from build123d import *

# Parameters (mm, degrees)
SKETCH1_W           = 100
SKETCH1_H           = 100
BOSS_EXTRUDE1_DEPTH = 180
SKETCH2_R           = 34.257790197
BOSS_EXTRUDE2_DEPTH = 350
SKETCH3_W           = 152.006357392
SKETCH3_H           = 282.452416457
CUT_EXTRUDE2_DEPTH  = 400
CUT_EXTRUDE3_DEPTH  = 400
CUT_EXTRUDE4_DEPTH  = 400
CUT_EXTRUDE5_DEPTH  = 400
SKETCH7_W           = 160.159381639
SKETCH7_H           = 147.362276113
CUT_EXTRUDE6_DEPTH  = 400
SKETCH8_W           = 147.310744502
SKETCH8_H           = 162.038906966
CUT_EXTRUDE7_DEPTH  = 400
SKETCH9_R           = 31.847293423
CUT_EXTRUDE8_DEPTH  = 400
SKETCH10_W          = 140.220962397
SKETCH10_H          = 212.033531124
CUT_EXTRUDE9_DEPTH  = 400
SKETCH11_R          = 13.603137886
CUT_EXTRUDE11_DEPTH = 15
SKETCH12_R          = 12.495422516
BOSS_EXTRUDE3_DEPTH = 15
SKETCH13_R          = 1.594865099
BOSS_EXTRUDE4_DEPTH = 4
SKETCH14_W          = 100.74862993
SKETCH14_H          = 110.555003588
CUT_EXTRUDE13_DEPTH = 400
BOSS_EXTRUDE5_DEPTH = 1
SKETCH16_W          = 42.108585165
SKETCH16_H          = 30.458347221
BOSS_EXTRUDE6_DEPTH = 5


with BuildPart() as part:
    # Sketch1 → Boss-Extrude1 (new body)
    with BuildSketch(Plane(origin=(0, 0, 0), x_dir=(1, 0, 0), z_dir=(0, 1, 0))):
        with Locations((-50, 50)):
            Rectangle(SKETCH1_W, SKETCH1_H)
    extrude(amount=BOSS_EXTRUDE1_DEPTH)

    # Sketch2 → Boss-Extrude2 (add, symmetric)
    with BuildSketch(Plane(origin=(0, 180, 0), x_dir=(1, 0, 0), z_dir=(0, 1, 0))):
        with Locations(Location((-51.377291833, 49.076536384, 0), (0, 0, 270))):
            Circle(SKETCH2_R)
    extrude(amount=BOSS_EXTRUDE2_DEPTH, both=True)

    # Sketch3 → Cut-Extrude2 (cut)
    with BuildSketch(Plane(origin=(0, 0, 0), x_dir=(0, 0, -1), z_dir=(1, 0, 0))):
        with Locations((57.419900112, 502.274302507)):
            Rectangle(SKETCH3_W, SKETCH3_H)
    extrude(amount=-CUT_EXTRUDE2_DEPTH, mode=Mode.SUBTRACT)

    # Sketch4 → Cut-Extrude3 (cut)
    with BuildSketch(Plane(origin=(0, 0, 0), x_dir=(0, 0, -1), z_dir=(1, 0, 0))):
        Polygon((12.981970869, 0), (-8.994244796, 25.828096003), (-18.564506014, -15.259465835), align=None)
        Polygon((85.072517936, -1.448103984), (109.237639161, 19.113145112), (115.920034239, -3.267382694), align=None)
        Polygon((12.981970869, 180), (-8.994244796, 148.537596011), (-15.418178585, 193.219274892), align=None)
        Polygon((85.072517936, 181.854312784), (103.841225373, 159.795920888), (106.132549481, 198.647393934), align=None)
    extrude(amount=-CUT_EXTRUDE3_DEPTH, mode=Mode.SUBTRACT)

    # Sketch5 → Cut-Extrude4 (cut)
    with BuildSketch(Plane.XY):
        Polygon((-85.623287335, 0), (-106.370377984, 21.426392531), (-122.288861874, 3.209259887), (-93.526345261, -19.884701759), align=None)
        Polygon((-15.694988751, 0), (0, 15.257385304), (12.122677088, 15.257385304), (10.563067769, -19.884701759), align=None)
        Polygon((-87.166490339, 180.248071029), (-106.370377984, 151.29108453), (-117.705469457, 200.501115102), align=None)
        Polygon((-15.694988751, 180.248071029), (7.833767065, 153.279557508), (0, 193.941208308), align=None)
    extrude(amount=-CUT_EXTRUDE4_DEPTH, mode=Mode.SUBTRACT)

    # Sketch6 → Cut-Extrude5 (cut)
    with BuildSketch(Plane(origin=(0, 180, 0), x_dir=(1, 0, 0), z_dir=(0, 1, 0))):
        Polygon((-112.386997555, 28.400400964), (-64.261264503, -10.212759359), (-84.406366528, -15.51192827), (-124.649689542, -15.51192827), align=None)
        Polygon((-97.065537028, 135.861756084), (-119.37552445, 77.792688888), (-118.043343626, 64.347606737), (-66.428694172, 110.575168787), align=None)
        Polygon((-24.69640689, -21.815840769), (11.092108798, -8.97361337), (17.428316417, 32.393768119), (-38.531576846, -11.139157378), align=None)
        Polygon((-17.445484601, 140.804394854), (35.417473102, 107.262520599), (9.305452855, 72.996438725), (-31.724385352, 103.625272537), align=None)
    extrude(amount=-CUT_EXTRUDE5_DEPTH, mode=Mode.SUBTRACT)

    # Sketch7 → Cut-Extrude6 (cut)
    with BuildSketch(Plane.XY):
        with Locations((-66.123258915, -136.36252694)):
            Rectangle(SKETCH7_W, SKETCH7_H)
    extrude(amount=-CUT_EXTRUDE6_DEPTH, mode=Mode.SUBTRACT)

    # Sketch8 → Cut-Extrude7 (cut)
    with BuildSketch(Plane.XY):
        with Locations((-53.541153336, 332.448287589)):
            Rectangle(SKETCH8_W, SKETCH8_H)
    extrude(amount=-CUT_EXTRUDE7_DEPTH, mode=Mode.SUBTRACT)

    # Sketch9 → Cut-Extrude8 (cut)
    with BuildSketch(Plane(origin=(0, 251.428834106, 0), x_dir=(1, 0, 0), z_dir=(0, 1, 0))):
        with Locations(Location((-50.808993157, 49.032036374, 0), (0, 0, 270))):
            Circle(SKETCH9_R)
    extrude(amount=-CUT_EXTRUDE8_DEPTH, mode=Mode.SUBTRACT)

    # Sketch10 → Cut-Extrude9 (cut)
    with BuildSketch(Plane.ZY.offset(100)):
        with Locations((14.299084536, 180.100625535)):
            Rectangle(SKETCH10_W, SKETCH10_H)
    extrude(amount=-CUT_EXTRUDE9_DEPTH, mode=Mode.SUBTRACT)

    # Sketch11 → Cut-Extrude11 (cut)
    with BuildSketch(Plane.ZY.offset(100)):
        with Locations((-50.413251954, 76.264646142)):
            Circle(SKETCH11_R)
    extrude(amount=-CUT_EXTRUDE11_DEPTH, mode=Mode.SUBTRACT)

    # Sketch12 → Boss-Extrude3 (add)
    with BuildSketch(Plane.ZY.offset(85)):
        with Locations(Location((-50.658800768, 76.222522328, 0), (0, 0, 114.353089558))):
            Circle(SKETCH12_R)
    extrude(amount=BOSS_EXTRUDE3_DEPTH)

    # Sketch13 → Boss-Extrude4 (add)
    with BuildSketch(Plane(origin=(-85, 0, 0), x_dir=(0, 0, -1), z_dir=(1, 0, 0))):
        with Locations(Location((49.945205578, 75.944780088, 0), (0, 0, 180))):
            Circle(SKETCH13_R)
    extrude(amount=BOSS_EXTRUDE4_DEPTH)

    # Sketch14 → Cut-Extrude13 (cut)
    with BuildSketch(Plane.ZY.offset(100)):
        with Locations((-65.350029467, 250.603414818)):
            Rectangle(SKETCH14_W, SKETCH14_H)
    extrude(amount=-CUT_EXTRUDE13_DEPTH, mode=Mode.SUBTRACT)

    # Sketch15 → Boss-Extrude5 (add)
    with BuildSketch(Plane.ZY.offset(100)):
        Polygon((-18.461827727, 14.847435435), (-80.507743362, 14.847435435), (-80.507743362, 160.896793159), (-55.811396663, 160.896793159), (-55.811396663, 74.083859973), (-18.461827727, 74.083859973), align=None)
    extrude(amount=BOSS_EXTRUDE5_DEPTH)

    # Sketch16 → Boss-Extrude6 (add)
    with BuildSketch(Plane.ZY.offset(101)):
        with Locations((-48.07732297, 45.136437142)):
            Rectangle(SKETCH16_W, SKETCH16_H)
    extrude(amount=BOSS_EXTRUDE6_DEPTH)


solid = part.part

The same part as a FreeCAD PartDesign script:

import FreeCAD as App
import Part
import Sketcher
Q = App.Units.Quantity

doc = App.newDocument("Part")
body = doc.addObject("PartDesign::Body", "Body")

# Sketch on XZ plane
sketch1 = doc.addObject("Sketcher::SketchObject", "Sketch")
body.addObject(sketch1)
sketch1.AttachmentSupport = (doc.XZ_Plane, [""])
sketch1.MapMode = "FlatFace"
sketch1.addGeometry([
    Part.LineSegment(App.Vector(-100, -100, 0), App.Vector(-100, 0, 0)),
    Part.LineSegment(App.Vector(-100, 0, 0), App.Vector(0, 0, 0)),
    Part.LineSegment(App.Vector(0, 0, 0), App.Vector(0, -100, 0)),
    Part.LineSegment(App.Vector(0, -100, 0), App.Vector(-100, -100, 0)),
], False)
sketch1.addConstraint([
    Sketcher.Constraint("Coincident", 0, 2, 1, 1),
    Sketcher.Constraint("Coincident", 1, 2, 2, 1),
    Sketcher.Constraint("Coincident", 2, 2, 3, 1),
    Sketcher.Constraint("Coincident", 3, 2, 0, 1),
    Sketcher.Constraint("Vertical", 0),
    Sketcher.Constraint("Horizontal", 1),
    Sketcher.Constraint("Vertical", 2),
    Sketcher.Constraint("Horizontal", 3),
    Sketcher.Constraint("Coincident", 1, 2, -1, 1),
    Sketcher.Constraint("Equal", 3, 0),
    Sketcher.Constraint("DistanceX", 1, 1, 1, 2, 100.0),
])
pad1 = doc.addObject("PartDesign::Pad", "Pad")
body.addObject(pad1)
pad1.Profile = sketch1
pad1.Length = 180
pad1.Reversed = True

# Sketch on XZ plane
sketch2 = doc.addObject("Sketcher::SketchObject", "Sketch001")
body.addObject(sketch2)
sketch2.AttachmentSupport = (doc.XZ_Plane, [""])
sketch2.MapMode = "FlatFace"
sketch2.AttachmentOffset = App.Placement(App.Vector(0, 0, -180), App.Rotation())
sketch2.addGeometry(Part.Circle(App.Vector(-51, -49, 0), App.Vector(0, 0, 1), 34), False)
sketch2.addConstraint([
    Sketcher.Constraint("Diameter", 0, 68.51558),
    Sketcher.Constraint("DistanceX", 0, 3, -1, 1, 51.377292),
    Sketcher.Constraint("DistanceY", 0, 3, -1, 1, 49.076536),
])
pad2 = doc.addObject("PartDesign::Pad", "Pad001")
body.addObject(pad2)
pad2.Profile = sketch2
pad2.Length = 700
pad2.Midplane = True

# Sketch on YZ plane
sketch3 = doc.addObject("Sketcher::SketchObject", "Sketch002")
body.addObject(sketch3)
sketch3.AttachmentSupport = (doc.YZ_Plane, [""])
sketch3.MapMode = "FlatFace"
sketch3.addGeometry([
    Part.LineSegment(App.Vector(644, 19, 0), App.Vector(361, 19, 0)),
    Part.LineSegment(App.Vector(361, 19, 0), App.Vector(361, -133, 0)),
    Part.LineSegment(App.Vector(361, -133, 0), App.Vector(644, -133, 0)),
    Part.LineSegment(App.Vector(644, -133, 0), App.Vector(644, 19, 0)),
], False)
sketch3.addConstraint([
    Sketcher.Constraint("Coincident", 0, 2, 1, 1),
    Sketcher.Constraint("Coincident", 1, 2, 2, 1),
    Sketcher.Constraint("Coincident", 2, 2, 3, 1),
    Sketcher.Constraint("Coincident", 3, 2, 0, 1),
    Sketcher.Constraint("Horizontal", 0),
    Sketcher.Constraint("Vertical", 1),
    Sketcher.Constraint("Horizontal", 2),
    Sketcher.Constraint("Vertical", 3),
    Sketcher.Constraint("DistanceX", 0, 2, 0, 1, 282.452416),
    Sketcher.Constraint("DistanceY", 1, 2, 1, 1, 152.006357),
    Sketcher.Constraint("DistanceY", -1, 1, 0, 2, 18.583279),
    Sketcher.Constraint("DistanceX", -1, 1, 2, 2, 643.500511),
])
pocket1 = doc.addObject("PartDesign::Pocket", "Pocket")
body.addObject(pocket1)
pocket1.Profile = sketch3
pocket1.Length = 400

# Sketch on YZ plane
sketch4 = doc.addObject("Sketcher::SketchObject", "Sketch003")
body.addObject(sketch4)
sketch4.AttachmentSupport = (doc.YZ_Plane, [""])
sketch4.MapMode = "FlatFace"
sketch4.addGeometry([
    Part.LineSegment(App.Vector(0, -13, 0), App.Vector(26, 9, 0)),  # 0
    Part.LineSegment(App.Vector(26, 9, 0), App.Vector(-15, 19, 0)),  # 1
    Part.LineSegment(App.Vector(-15, 19, 0), App.Vector(0, -13, 0)),  # 2
    Part.LineSegment(App.Vector(19, -109, 0), App.Vector(-1, -85, 0)),  # 3
    Part.LineSegment(App.Vector(-1, -85, 0), App.Vector(-3, -116, 0)),  # 4
    Part.LineSegment(App.Vector(-3, -116, 0), App.Vector(19, -109, 0)),  # 5
    Part.LineSegment(App.Vector(149, 9, 0), App.Vector(180, -13, 0)),  # 6
    Part.LineSegment(App.Vector(180, -13, 0), App.Vector(193, 15, 0)),  # 7
    Part.LineSegment(App.Vector(193, 15, 0), App.Vector(149, 9, 0)),  # 8
    Part.LineSegment(App.Vector(182, -85, 0), App.Vector(160, -104, 0)),  # 9
    Part.LineSegment(App.Vector(160, -104, 0), App.Vector(199, -106, 0)),  # 10
    Part.LineSegment(App.Vector(199, -106, 0), App.Vector(182, -85, 0)),  # 11
], False)
sketch4.addConstraint([
    Sketcher.Constraint("Coincident", 0, 2, 1, 1),
    Sketcher.Constraint("Coincident", 1, 2, 2, 1),
    Sketcher.Constraint("Coincident", 2, 2, 0, 1),
    Sketcher.Constraint("Coincident", 3, 2, 4, 1),
    Sketcher.Constraint("Coincident", 4, 2, 5, 1),
    Sketcher.Constraint("Coincident", 5, 2, 3, 1),
    Sketcher.Constraint("Coincident", 6, 2, 7, 1),
    Sketcher.Constraint("Coincident", 7, 2, 8, 1),
    Sketcher.Constraint("Coincident", 8, 2, 6, 1),
    Sketcher.Constraint("Coincident", 9, 2, 10, 1),
    Sketcher.Constraint("Coincident", 10, 2, 11, 1),
    Sketcher.Constraint("Coincident", 11, 2, 9, 1),
    Sketcher.Constraint("PointOnObject", 2, 2, -2),
    Sketcher.Constraint("Perpendicular", 0, 3),
    Sketcher.Constraint("Perpendicular", 3, 9),
    Sketcher.Constraint("Perpendicular", 4, 10),
    Sketcher.Constraint("Horizontal", 2, 2, 6, 2),
    Sketcher.Constraint("Horizontal", 0, 2, 8, 2),
    Sketcher.Constraint("Horizontal", 3, 2, 11, 2),
    Sketcher.Constraint("DistanceX", -1, 1, 6, 2, 180.0),
    Sketcher.Constraint("DistanceX", 3, 2, 0, 2, 27.2762),
    Sketcher.Constraint("DistanceX", 0, 2, 8, 2, 122.7095),
    Sketcher.Constraint("Distance", 1, 42.187411),
    Sketcher.Constraint("Distance", 2, 35.04328),
    Sketcher.Constraint("Distance", 3, 31.72882),
    Sketcher.Constraint("Distance", 5, 23.35685),
    Sketcher.Constraint("Distance", 7, 31.325991),
    Sketcher.Constraint("Distance", 10, 38.918982),
    Sketcher.Constraint("Distance", 11, 26.935711),
    Sketcher.Constraint("DistanceY", 2, 2, -1, 1, 12.981971),
    Sketcher.Constraint("DistanceY", 5, 2, -1, 1, 109.237639),
    Sketcher.Constraint("DistanceY", -1, 1, 7, 2, 15.418179),
    Sketcher.Constraint("DistanceX", -1, 1, 9, 2, 159.795921),
    Sketcher.Constraint("DistanceY", 10, 2, -1, 1, 106.132549),
    Sketcher.Constraint("DistanceX", 1, 2, 0, 2, 41.087562),
    Sketcher.Constraint("DistanceX", 4, 2, 3, 2, 1.819279),
])
pocket2 = doc.addObject("PartDesign::Pocket", "Pocket001")
body.addObject(pocket2)
pocket2.Profile = sketch4
pocket2.Length = 400

# Sketch on XY plane
sketch5 = doc.addObject("Sketcher::SketchObject", "Sketch004")
body.addObject(sketch5)
sketch5.AttachmentSupport = (doc.XY_Plane, [""])
sketch5.MapMode = "FlatFace"
sketch5.addGeometry([
    Part.LineSegment(App.Vector(-86, 0, 0), App.Vector(-106, 21, 0)),  # 0
    Part.LineSegment(App.Vector(-106, 21, 0), App.Vector(-122, 3, 0)),  # 1
    Part.LineSegment(App.Vector(-122, 3, 0), App.Vector(-94, -20, 0)),  # 2
    Part.LineSegment(App.Vector(-94, -20, 0), App.Vector(-86, 0, 0)),  # 3
    Part.LineSegment(App.Vector(0, 15, 0), App.Vector(-16, 0, 0)),  # 4
    Part.LineSegment(App.Vector(-16, 0, 0), App.Vector(11, -20, 0)),  # 5
    Part.LineSegment(App.Vector(11, -20, 0), App.Vector(12, 15, 0)),  # 6
    Part.LineSegment(App.Vector(12, 15, 0), App.Vector(0, 15, 0)),  # 7
    Part.LineSegment(App.Vector(-106, 151, 0), App.Vector(-87, 180, 0)),  # 8
    Part.LineSegment(App.Vector(-87, 180, 0), App.Vector(-118, 201, 0)),  # 9
    Part.LineSegment(App.Vector(-118, 201, 0), App.Vector(-106, 151, 0)),  # 10
    Part.LineSegment(App.Vector(-16, 180, 0), App.Vector(8, 153, 0)),  # 11
    Part.LineSegment(App.Vector(8, 153, 0), App.Vector(0, 194, 0)),  # 12
    Part.LineSegment(App.Vector(0, 194, 0), App.Vector(-16, 180, 0)),  # 13
], False)
sketch5.addConstraint([
    Sketcher.Constraint("Coincident", 0, 2, 1, 1),
    Sketcher.Constraint("Coincident", 1, 2, 2, 1),
    Sketcher.Constraint("Coincident", 2, 2, 3, 1),
    Sketcher.Constraint("Coincident", 3, 2, 0, 1),
    Sketcher.Constraint("Coincident", 4, 2, 5, 1),
    Sketcher.Constraint("Coincident", 5, 2, 6, 1),
    Sketcher.Constraint("Coincident", 6, 2, 7, 1),
    Sketcher.Constraint("Coincident", 7, 2, 4, 1),
    Sketcher.Constraint("Coincident", 8, 2, 9, 1),
    Sketcher.Constraint("Coincident", 9, 2, 10, 1),
    Sketcher.Constraint("Coincident", 10, 2, 8, 1),
    Sketcher.Constraint("Coincident", 11, 2, 12, 1),
    Sketcher.Constraint("Coincident", 12, 2, 13, 1),
    Sketcher.Constraint("Coincident", 13, 2, 11, 1),
    Sketcher.Constraint("Horizontal", 7),
    Sketcher.Constraint("PointOnObject", 3, 2, -1),
    Sketcher.Constraint("PointOnObject", 4, 2, -1),
    Sketcher.Constraint("PointOnObject", 7, 2, -2),
    Sketcher.Constraint("PointOnObject", 12, 2, -2),
    Sketcher.Constraint("Perpendicular", 8, 9),
    Sketcher.Constraint("Perpendicular", 11, 13),
    Sketcher.Constraint("Horizontal", 2, 2, 5, 2),
    Sketcher.Constraint("Horizontal", 8, 2, 13, 2),
    Sketcher.Constraint("Vertical", 0, 2, 10, 2),
    Sketcher.Constraint("Vertical", 4, 2, 13, 2),
    Sketcher.Constraint("Angle", 4, Q("-135.809992 deg")),
    Sketcher.Constraint("Distance", 13, 20.828698),
    Sketcher.Constraint("DistanceY", 2, 2, -1, 1, 19.884702),
    Sketcher.Constraint("DistanceX", 3, 2, 4, 2, 69.928299),
    Sketcher.Constraint("DistanceX", 8, 2, 13, 2, 71.471502),
    Sketcher.Constraint("Distance", 1, 24.19219),
    Sketcher.Constraint("Distance", 4, 21.888821),
    Sketcher.Constraint("Distance", 5, 32.937621),
    Sketcher.Constraint("Distance", 8, 34.746171),
    Sketcher.Constraint("Distance", 9, 36.644441),
    Sketcher.Constraint("DistanceX", 7, 2, 7, 1, 12.122677),
    Sketcher.Constraint("DistanceX", 1, 2, -1, 1, 122.288862),
    Sketcher.Constraint("DistanceY", -1, 1, 1, 2, 3.20926),
    Sketcher.Constraint("DistanceY", -1, 1, 8, 2, 180.248071),
    Sketcher.Constraint("DistanceX", 9, 2, -1, 1, 117.705469),
    Sketcher.Constraint("DistanceX", 11, 2, 6, 2, 4.28891),
    Sketcher.Constraint("Distance", 2, 36.886494),
])
pocket3 = doc.addObject("PartDesign::Pocket", "Pocket002")
body.addObject(pocket3)
pocket3.Profile = sketch5
pocket3.Length = 400

# Sketch on XZ plane
sketch6 = doc.addObject("Sketcher::SketchObject", "Sketch005")
body.addObject(sketch6)
sketch6.AttachmentSupport = (doc.XZ_Plane, [""])
sketch6.MapMode = "FlatFace"
sketch6.AttachmentOffset = App.Placement(App.Vector(0, 0, -180), App.Rotation())
sketch6.addGeometry([
    Part.LineSegment(App.Vector(-64, 10, 0), App.Vector(-112, -28, 0)),  # 0
    Part.LineSegment(App.Vector(-112, -28, 0), App.Vector(-125, 16, 0)),  # 1
    Part.LineSegment(App.Vector(-125, 16, 0), App.Vector(-84, 16, 0)),  # 2
    Part.LineSegment(App.Vector(-84, 16, 0), App.Vector(-64, 10, 0)),  # 3
    Part.LineSegment(App.Vector(-97, -136, 0), App.Vector(-119, -78, 0)),  # 4
    Part.LineSegment(App.Vector(-119, -78, 0), App.Vector(-118, -64, 0)),  # 5
    Part.LineSegment(App.Vector(-118, -64, 0), App.Vector(-66, -111, 0)),  # 6
    Part.LineSegment(App.Vector(-66, -111, 0), App.Vector(-97, -136, 0)),  # 7
    Part.LineSegment(App.Vector(-25, 22, 0), App.Vector(11, 9, 0)),  # 8
    Part.LineSegment(App.Vector(11, 9, 0), App.Vector(17, -32, 0)),  # 9
    Part.LineSegment(App.Vector(17, -32, 0), App.Vector(-39, 11, 0)),  # 10
    Part.LineSegment(App.Vector(-39, 11, 0), App.Vector(-25, 22, 0)),  # 11
    Part.LineSegment(App.Vector(35, -107, 0), App.Vector(-17, -141, 0)),  # 12
    Part.LineSegment(App.Vector(-17, -141, 0), App.Vector(-32, -104, 0)),  # 13
    Part.LineSegment(App.Vector(-32, -104, 0), App.Vector(9, -73, 0)),  # 14
    Part.LineSegment(App.Vector(9, -73, 0), App.Vector(35, -107, 0)),  # 15
], False)
sketch6.addConstraint([
    Sketcher.Constraint("Coincident", 0, 2, 1, 1),
    Sketcher.Constraint("Coincident", 1, 2, 2, 1),
    Sketcher.Constraint("Coincident", 2, 2, 3, 1),
    Sketcher.Constraint("Coincident", 3, 2, 0, 1),
    Sketcher.Constraint("Coincident", 4, 2, 5, 1),
    Sketcher.Constraint("Coincident", 5, 2, 6, 1),
    Sketcher.Constraint("Coincident", 6, 2, 7, 1),
    Sketcher.Constraint("Coincident", 7, 2, 4, 1),
    Sketcher.Constraint("Coincident", 8, 2, 9, 1),
    Sketcher.Constraint("Coincident", 9, 2, 10, 1),
    Sketcher.Constraint("Coincident", 10, 2, 11, 1),
    Sketcher.Constraint("Coincident", 11, 2, 8, 1),
    Sketcher.Constraint("Coincident", 12, 2, 13, 1),
    Sketcher.Constraint("Coincident", 13, 2, 14, 1),
    Sketcher.Constraint("Coincident", 14, 2, 15, 1),
    Sketcher.Constraint("Coincident", 15, 2, 12, 1),
    Sketcher.Constraint("Horizontal", 2),
    Sketcher.Constraint("Distance", 13, 39.826802),
    Sketcher.Constraint("Distance", 14, 51.2013),
    Sketcher.Constraint("DistanceY", 0, 2, -1, 1, 28.400401),
    Sketcher.Constraint("DistanceX", 1, 2, 8, 2, 135.741798),
    Sketcher.Constraint("DistanceY", 6, 2, 9, 2, 78.181401),
    Sketcher.Constraint("DistanceY", 3, 2, 10, 2, 0.926398),
    Sketcher.Constraint("DistanceX", 12, 2, 9, 2, 34.873801),
    Sketcher.Constraint("DistanceX", 13, 2, 12, 2, 14.278901),
    Sketcher.Constraint("Distance", 3, 20.830418),
    Sketcher.Constraint("Distance", 4, 62.207332),
    Sketcher.Constraint("Distance", 5, 13.510919),
    Sketcher.Constraint("Distance", 6, 69.289678),
    Sketcher.Constraint("Distance", 15, 43.081341),
    Sketcher.Constraint("DistanceX", 2, 1, 2, 2, 40.243323),
    Sketcher.Constraint("DistanceX", 1, 2, -1, 1, 124.64969),
    Sketcher.Constraint("DistanceY", -1, 1, 1, 2, 15.511928),
    Sketcher.Constraint("DistanceY", -1, 1, 3, 2, 10.212759),
    Sketcher.Constraint("DistanceY", 4, 2, -1, 1, 77.792689),
    Sketcher.Constraint("DistanceY", 6, 2, -1, 1, 110.575169),
    Sketcher.Constraint("DistanceY", -1, 1, 11, 2, 21.815841),
    Sketcher.Constraint("DistanceY", 14, 2, -1, 1, 72.996439),
    Sketcher.Constraint("DistanceY", 15, 2, -1, 1, 107.262521),
    Sketcher.Constraint("DistanceX", 1, 2, 0, 2, 12.262692),
    Sketcher.Constraint("DistanceX", 4, 2, 3, 2, 55.11426),
    Sketcher.Constraint("DistanceX", 4, 2, 5, 2, 1.332181),
    Sketcher.Constraint("DistanceY", 7, 2, 5, 2, 71.514149),
    Sketcher.Constraint("DistanceY", 9, 2, 8, 2, 41.367381),
    Sketcher.Constraint("DistanceX", 3, 2, 9, 2, 81.689581),
    Sketcher.Constraint("DistanceX", 2, 2, 10, 2, 45.87479),
    Sketcher.Constraint("DistanceX", 10, 2, 11, 2, 13.83517),
    Sketcher.Constraint("DistanceY", 12, 2, 7, 2, 4.942639),
])
pocket4 = doc.addObject("PartDesign::Pocket", "Pocket003")
body.addObject(pocket4)
pocket4.Profile = sketch6
pocket4.Length = 400
pocket4.Reversed = True

# Sketch on XY plane
sketch7 = doc.addObject("Sketcher::SketchObject", "Sketch006")
body.addObject(sketch7)
sketch7.AttachmentSupport = (doc.XY_Plane, [""])
sketch7.MapMode = "FlatFace"
sketch7.addGeometry([
    Part.LineSegment(App.Vector(-146, -63, 0), App.Vector(-146, -210, 0)),
    Part.LineSegment(App.Vector(-146, -210, 0), App.Vector(14, -210, 0)),
    Part.LineSegment(App.Vector(14, -210, 0), App.Vector(14, -63, 0)),
    Part.LineSegment(App.Vector(14, -63, 0), App.Vector(-146, -63, 0)),
], False)
sketch7.addConstraint([
    Sketcher.Constraint("Coincident", 0, 2, 1, 1),
    Sketcher.Constraint("Coincident", 1, 2, 2, 1),
    Sketcher.Constraint("Coincident", 2, 2, 3, 1),
    Sketcher.Constraint("Coincident", 3, 2, 0, 1),
    Sketcher.Constraint("Vertical", 0),
    Sketcher.Constraint("Horizontal", 1),
    Sketcher.Constraint("Vertical", 2),
    Sketcher.Constraint("Horizontal", 3),
    Sketcher.Constraint("DistanceX", 1, 1, 1, 2, 160.159382),
    Sketcher.Constraint("DistanceY", 0, 2, 0, 1, 147.362276),
    Sketcher.Constraint("DistanceX", 0, 2, -1, 1, 146.20295),
    Sketcher.Constraint("DistanceY", 2, 2, -1, 1, 62.681389),
])
pocket5 = doc.addObject("PartDesign::Pocket", "Pocket004")
body.addObject(pocket5)
pocket5.Profile = sketch7
pocket5.Length = 400

# Sketch on XY plane
sketch8 = doc.addObject("Sketcher::SketchObject", "Sketch007")
body.addObject(sketch8)
sketch8.AttachmentSupport = (doc.XY_Plane, [""])
sketch8.MapMode = "FlatFace"
sketch8.addGeometry([
    Part.LineSegment(App.Vector(-127, 413, 0), App.Vector(-127, 251, 0)),
    Part.LineSegment(App.Vector(-127, 251, 0), App.Vector(20, 251, 0)),
    Part.LineSegment(App.Vector(20, 251, 0), App.Vector(20, 413, 0)),
    Part.LineSegment(App.Vector(20, 413, 0), App.Vector(-127, 413, 0)),
], False)
sketch8.addConstraint([
    Sketcher.Constraint("Coincident", 0, 2, 1, 1),
    Sketcher.Constraint("Coincident", 1, 2, 2, 1),
    Sketcher.Constraint("Coincident", 2, 2, 3, 1),
    Sketcher.Constraint("Coincident", 3, 2, 0, 1),
    Sketcher.Constraint("Vertical", 0),
    Sketcher.Constraint("Horizontal", 1),
    Sketcher.Constraint("Vertical", 2),
    Sketcher.Constraint("Horizontal", 3),
    Sketcher.Constraint("DistanceX", 1, 1, 1, 2, 147.310745),
    Sketcher.Constraint("DistanceY", 0, 2, 0, 1, 162.038907),
    Sketcher.Constraint("DistanceX", -1, 1, 1, 2, 20.114219),
    Sketcher.Constraint("DistanceY", -1, 1, 2, 2, 413.467741),
])
pocket6 = doc.addObject("PartDesign::Pocket", "Pocket005")
body.addObject(pocket6)
pocket6.Profile = sketch8
pocket6.Length = 400

# Sketch on XZ plane
sketch9 = doc.addObject("Sketcher::SketchObject", "Sketch008")
body.addObject(sketch9)
sketch9.AttachmentSupport = (doc.XZ_Plane, [""])
sketch9.MapMode = "FlatFace"
sketch9.AttachmentOffset = App.Placement(App.Vector(0, 0, -251.428834), App.Rotation())
sketch9.addGeometry(Part.Circle(App.Vector(-51, -49, 0), App.Vector(0, 0, 1), 32), False)
sketch9.addConstraint([
    Sketcher.Constraint("Diameter", 0, 63.694587),
    Sketcher.Constraint("DistanceX", 0, 3, -1, 1, 50.808993),
    Sketcher.Constraint("DistanceY", 0, 3, -1, 1, 49.032036),
])
pocket7 = doc.addObject("PartDesign::Pocket", "Pocket006")
body.addObject(pocket7)
pocket7.Profile = sketch9
pocket7.Length = 400
pocket7.Reversed = True

# Sketch on YZ plane
sketch10 = doc.addObject("Sketcher::SketchObject", "Sketch009")
body.addObject(sketch10)
sketch10.AttachmentSupport = (doc.YZ_Plane, [""])
sketch10.MapMode = "FlatFace"
sketch10.AttachmentOffset = App.Placement(App.Vector(0, 0, -100), App.Rotation())
sketch10.addGeometry([
    Part.LineSegment(App.Vector(286, -56, 0), App.Vector(74, -56, 0)),
    Part.LineSegment(App.Vector(74, -56, 0), App.Vector(74, 84, 0)),
    Part.LineSegment(App.Vector(74, 84, 0), App.Vector(286, 84, 0)),
    Part.LineSegment(App.Vector(286, 84, 0), App.Vector(286, -56, 0)),
], False)
sketch10.addConstraint([
    Sketcher.Constraint("Coincident", 0, 2, 1, 1),
    Sketcher.Constraint("Coincident", 1, 2, 2, 1),
    Sketcher.Constraint("Coincident", 2, 2, 3, 1),
    Sketcher.Constraint("Coincident", 3, 2, 0, 1),
    Sketcher.Constraint("Horizontal", 0),
    Sketcher.Constraint("Vertical", 1),
    Sketcher.Constraint("Horizontal", 2),
    Sketcher.Constraint("Vertical", 3),
    Sketcher.Constraint("DistanceX", 0, 2, 0, 1, 212.033531),
    Sketcher.Constraint("DistanceY", 1, 1, 1, 2, 140.220962),
    Sketcher.Constraint("DistanceX", -1, 1, 0, 2, 74.08386),
    Sketcher.Constraint("DistanceY", 0, 2, -1, 1, 55.811397),
])
pocket8 = doc.addObject("PartDesign::Pocket", "Pocket007")
body.addObject(pocket8)
pocket8.Profile = sketch10
pocket8.Length = 400
pocket8.Reversed = True

# Sketch on YZ plane
sketch11 = doc.addObject("Sketcher::SketchObject", "Sketch010")
body.addObject(sketch11)
sketch11.AttachmentSupport = (doc.YZ_Plane, [""])
sketch11.MapMode = "FlatFace"
sketch11.AttachmentOffset = App.Placement(App.Vector(0, 0, -100), App.Rotation())
sketch11.addGeometry(Part.Circle(App.Vector(76, -50, 0), App.Vector(0, 0, 1), 14), False)
sketch11.addConstraint([
    Sketcher.Constraint("Diameter", 0, 27.206276),
    Sketcher.Constraint("DistanceY", 0, 3, -1, 1, 50.413252),
    Sketcher.Constraint("DistanceX", -1, 1, 0, 3, 76.264646),
])
pocket9 = doc.addObject("PartDesign::Pocket", "Pocket008")
body.addObject(pocket9)
pocket9.Profile = sketch11
pocket9.Length = 15
pocket9.Reversed = True

# Sketch on YZ plane
sketch12 = doc.addObject("Sketcher::SketchObject", "Sketch011")
body.addObject(sketch12)
sketch12.AttachmentSupport = (doc.YZ_Plane, [""])
sketch12.MapMode = "FlatFace"
sketch12.AttachmentOffset = App.Placement(App.Vector(0, 0, -85), App.Rotation())
sketch12.addGeometry(Part.Circle(App.Vector(76, -51, 0), App.Vector(0, 0, 1), 12), False)
sketch12.addConstraint([
    Sketcher.Constraint("Diameter", 0, 24.990845),
    Sketcher.Constraint("DistanceY", 0, 3, -1, 1, 50.658801),
    Sketcher.Constraint("DistanceX", -1, 1, 0, 3, 76.222522),
])
pad3 = doc.addObject("PartDesign::Pad", "Pad002")
body.addObject(pad3)
pad3.Profile = sketch12
pad3.Length = 15
pad3.Reversed = True

# Sketch on YZ plane
sketch13 = doc.addObject("Sketcher::SketchObject", "Sketch012")
body.addObject(sketch13)
sketch13.AttachmentSupport = (doc.YZ_Plane, [""])
sketch13.MapMode = "FlatFace"
sketch13.AttachmentOffset = App.Placement(App.Vector(0, 0, -85), App.Rotation())
sketch13.addGeometry(Part.Circle(App.Vector(75.9, -49.9, 0), App.Vector(0, 0, 1), 1.6), False)
sketch13.addConstraint([
    Sketcher.Constraint("Diameter", 0, 3.18973),
    Sketcher.Constraint("DistanceX", -1, 1, 0, 3, 75.94478),
    Sketcher.Constraint("DistanceY", 0, 3, -1, 1, 49.945206),
])
pad4 = doc.addObject("PartDesign::Pad", "Pad003")
body.addObject(pad4)
pad4.Profile = sketch13
pad4.Length = 4

# Sketch on YZ plane
sketch14 = doc.addObject("Sketcher::SketchObject", "Sketch013")
body.addObject(sketch14)
sketch14.AttachmentSupport = (doc.YZ_Plane, [""])
sketch14.MapMode = "FlatFace"
sketch14.AttachmentOffset = App.Placement(App.Vector(0, 0, -100), App.Rotation())
sketch14.addGeometry([
    Part.LineSegment(App.Vector(306, -116, 0), App.Vector(195, -116, 0)),
    Part.LineSegment(App.Vector(195, -116, 0), App.Vector(195, -15, 0)),
    Part.LineSegment(App.Vector(195, -15, 0), App.Vector(306, -15, 0)),
    Part.LineSegment(App.Vector(306, -15, 0), App.Vector(306, -116, 0)),
], False)
sketch14.addConstraint([
    Sketcher.Constraint("Coincident", 0, 2, 1, 1),
    Sketcher.Constraint("Coincident", 1, 2, 2, 1),
    Sketcher.Constraint("Coincident", 2, 2, 3, 1),
    Sketcher.Constraint("Coincident", 3, 2, 0, 1),
    Sketcher.Constraint("Horizontal", 0),
    Sketcher.Constraint("Vertical", 1),
    Sketcher.Constraint("Horizontal", 2),
    Sketcher.Constraint("Vertical", 3),
    Sketcher.Constraint("DistanceY", 1, 1, 1, 2, 100.74863),
    Sketcher.Constraint("DistanceX", 0, 2, 0, 1, 110.555004),
    Sketcher.Constraint("DistanceX", -1, 1, 0, 2, 195.325913),
    Sketcher.Constraint("DistanceY", 0, 2, -1, 1, 115.724344),
])
pocket10 = doc.addObject("PartDesign::Pocket", "Pocket009")
body.addObject(pocket10)
pocket10.Profile = sketch14
pocket10.Length = 400
pocket10.Reversed = True

# Sketch on YZ plane
sketch15 = doc.addObject("Sketcher::SketchObject", "Sketch014")
body.addObject(sketch15)
sketch15.AttachmentSupport = (doc.YZ_Plane, [""])
sketch15.MapMode = "FlatFace"
sketch15.AttachmentOffset = App.Placement(App.Vector(0, 0, -100), App.Rotation())
sketch15.addGeometry([
    Part.LineSegment(App.Vector(15, -81, 0), App.Vector(15, -18, 0)),  # 0
    Part.LineSegment(App.Vector(15, -18, 0), App.Vector(74, -18, 0)),  # 1
    Part.LineSegment(App.Vector(74, -18, 0), App.Vector(74, -56, 0)),  # 2
    Part.LineSegment(App.Vector(74, -56, 0), App.Vector(161, -56, 0)),  # 3
    Part.LineSegment(App.Vector(161, -56, 0), App.Vector(161, -81, 0)),  # 4
    Part.LineSegment(App.Vector(161, -81, 0), App.Vector(15, -81, 0)),  # 5
], False)
sketch15.addConstraint([
    Sketcher.Constraint("Coincident", 0, 2, 1, 1),
    Sketcher.Constraint("Coincident", 1, 2, 2, 1),
    Sketcher.Constraint("Coincident", 2, 2, 3, 1),
    Sketcher.Constraint("Coincident", 3, 2, 4, 1),
    Sketcher.Constraint("Coincident", 4, 2, 5, 1),
    Sketcher.Constraint("Coincident", 5, 2, 0, 1),
    Sketcher.Constraint("Vertical", 0),
    Sketcher.Constraint("Horizontal", 1),
    Sketcher.Constraint("Vertical", 2),
    Sketcher.Constraint("Horizontal", 3),
    Sketcher.Constraint("Vertical", 4),
    Sketcher.Constraint("Horizontal", 5),
    Sketcher.Constraint("DistanceY", 2, 2, 2, 1, 37.349569),
    Sketcher.Constraint("DistanceX", 1, 1, 1, 2, 59.236425),
    Sketcher.Constraint("DistanceX", 3, 1, 3, 2, 86.812933),
    Sketcher.Constraint("DistanceY", 0, 1, 0, 2, 62.045916),
    Sketcher.Constraint("DistanceX", -1, 1, 1, 2, 74.08386),
    Sketcher.Constraint("DistanceY", 0, 2, -1, 1, 18.461828),
])
pad5 = doc.addObject("PartDesign::Pad", "Pad004")
body.addObject(pad5)
pad5.Profile = sketch15
pad5.Length = 1
pad5.Reversed = True

# Sketch on YZ plane
sketch16 = doc.addObject("Sketcher::SketchObject", "Sketch015")
body.addObject(sketch16)
sketch16.AttachmentSupport = (doc.YZ_Plane, [""])
sketch16.MapMode = "FlatFace"
sketch16.AttachmentOffset = App.Placement(App.Vector(0, 0, -101), App.Rotation())
sketch16.addGeometry([
    Part.LineSegment(App.Vector(60, -69, 0), App.Vector(30, -69, 0)),
    Part.LineSegment(App.Vector(30, -69, 0), App.Vector(30, -27, 0)),
    Part.LineSegment(App.Vector(30, -27, 0), App.Vector(60, -27, 0)),
    Part.LineSegment(App.Vector(60, -27, 0), App.Vector(60, -69, 0)),
], False)
sketch16.addConstraint([
    Sketcher.Constraint("Coincident", 0, 2, 1, 1),
    Sketcher.Constraint("Coincident", 1, 2, 2, 1),
    Sketcher.Constraint("Coincident", 2, 2, 3, 1),
    Sketcher.Constraint("Coincident", 3, 2, 0, 1),
    Sketcher.Constraint("Horizontal", 0),
    Sketcher.Constraint("Vertical", 1),
    Sketcher.Constraint("Horizontal", 2),
    Sketcher.Constraint("Vertical", 3),
    Sketcher.Constraint("DistanceX", 0, 2, 0, 1, 30.458347),
    Sketcher.Constraint("DistanceY", 1, 1, 1, 2, 42.108585),
    Sketcher.Constraint("DistanceY", 1, 2, -1, 1, 27.02303),
    Sketcher.Constraint("DistanceX", -1, 1, 2, 2, 60.365611),
])
pad6 = doc.addObject("PartDesign::Pad", "Pad005")
body.addObject(pad6)
pad6.Profile = sketch16
pad6.Length = 5
pad6.Reversed = True

doc.recompute()
